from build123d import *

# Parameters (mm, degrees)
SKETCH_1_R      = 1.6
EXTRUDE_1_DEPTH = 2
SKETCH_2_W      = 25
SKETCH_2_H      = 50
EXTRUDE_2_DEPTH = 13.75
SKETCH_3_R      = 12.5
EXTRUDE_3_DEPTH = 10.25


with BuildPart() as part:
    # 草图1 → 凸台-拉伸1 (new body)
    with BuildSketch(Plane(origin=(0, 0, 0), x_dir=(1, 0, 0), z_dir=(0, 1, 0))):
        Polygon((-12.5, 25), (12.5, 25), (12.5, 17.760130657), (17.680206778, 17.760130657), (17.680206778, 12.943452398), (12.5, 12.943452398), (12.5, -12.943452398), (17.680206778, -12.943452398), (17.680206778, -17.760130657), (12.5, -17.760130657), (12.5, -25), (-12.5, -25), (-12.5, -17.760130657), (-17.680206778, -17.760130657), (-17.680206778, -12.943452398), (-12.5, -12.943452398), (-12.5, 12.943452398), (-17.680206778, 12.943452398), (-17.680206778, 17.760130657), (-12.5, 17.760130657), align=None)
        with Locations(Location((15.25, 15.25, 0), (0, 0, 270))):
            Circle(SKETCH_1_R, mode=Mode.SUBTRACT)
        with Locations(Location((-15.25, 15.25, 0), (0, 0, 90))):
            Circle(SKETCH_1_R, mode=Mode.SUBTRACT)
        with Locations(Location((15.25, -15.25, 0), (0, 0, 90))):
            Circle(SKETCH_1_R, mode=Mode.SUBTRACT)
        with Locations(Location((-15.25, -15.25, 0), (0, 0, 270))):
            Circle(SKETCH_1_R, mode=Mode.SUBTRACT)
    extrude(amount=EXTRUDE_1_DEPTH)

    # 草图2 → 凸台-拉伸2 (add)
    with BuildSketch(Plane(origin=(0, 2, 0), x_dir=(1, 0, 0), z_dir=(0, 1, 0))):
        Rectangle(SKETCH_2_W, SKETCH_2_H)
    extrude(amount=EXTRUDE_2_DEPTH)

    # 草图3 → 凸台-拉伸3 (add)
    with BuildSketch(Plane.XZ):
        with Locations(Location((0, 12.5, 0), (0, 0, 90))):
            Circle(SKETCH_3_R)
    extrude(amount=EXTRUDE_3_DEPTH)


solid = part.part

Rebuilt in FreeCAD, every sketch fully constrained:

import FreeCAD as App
import Part
import Sketcher

doc = App.newDocument("Part")
body = doc.addObject("PartDesign::Body", "Body")

sketch1 = body.newObject("Sketcher::SketchObject", "Sketch")
sketch1.AttachmentSupport = (doc.getObject("XZ_Plane"), [""])
sketch1.MapMode = "FlatFace"
sketch1.addGeometry([
    Part.LineSegment(App.Vector(12.5, -25, 0), App.Vector(-12.5, -25, 0)),
    Part.LineSegment(App.Vector(-12.5, -25, 0), App.Vector(-12.5, -17.8, 0)),
    Part.LineSegment(App.Vector(-12.5, -17.8, 0), App.Vector(-17.7, -17.8, 0)),
    Part.LineSegment(App.Vector(-17.7, -17.8, 0), App.Vector(-17.7, -12.9, 0)),
    Part.LineSegment(App.Vector(-17.7, -12.9, 0), App.Vector(-12.5, -12.9, 0)),
    Part.LineSegment(App.Vector(-12.5, -12.9, 0), App.Vector(-12.5, 12.9, 0)),
    Part.LineSegment(App.Vector(-12.5, 12.9, 0), App.Vector(-17.7, 12.9, 0)),
    Part.LineSegment(App.Vector(-17.7, 12.9, 0), App.Vector(-17.7, 17.8, 0)),
    Part.LineSegment(App.Vector(-17.7, 17.8, 0), App.Vector(-12.5, 17.8, 0)),
    Part.LineSegment(App.Vector(-12.5, 17.8, 0), App.Vector(-12.5, 25, 0)),
    Part.LineSegment(App.Vector(-12.5, 25, 0), App.Vector(12.5, 25, 0)),
    Part.LineSegment(App.Vector(12.5, 25, 0), App.Vector(12.5, 17.8, 0)),
    Part.LineSegment(App.Vector(12.5, 17.8, 0), App.Vector(17.7, 17.8, 0)),
    Part.LineSegment(App.Vector(17.7, 17.8, 0), App.Vector(17.7, 12.9, 0)),
    Part.LineSegment(App.Vector(17.7, 12.9, 0), App.Vector(12.5, 12.9, 0)),
    Part.LineSegment(App.Vector(12.5, 12.9, 0), App.Vector(12.5, -12.9, 0)),
    Part.LineSegment(App.Vector(12.5, -12.9, 0), App.Vector(17.7, -12.9, 0)),
    Part.LineSegment(App.Vector(17.7, -12.9, 0), App.Vector(17.7, -17.8, 0)),
    Part.LineSegment(App.Vector(17.7, -17.8, 0), App.Vector(12.5, -17.8, 0)),
    Part.LineSegment(App.Vector(12.5, -17.8, 0), App.Vector(12.5, -25, 0)),
    Part.Circle(App.Vector(15.2, 15.2, 0), App.Vector(0, 0, 1), 1.6),
    Part.Circle(App.Vector(-15.2, 15.2, 0), App.Vector(0, 0, 1), 1.6),
    Part.Circle(App.Vector(15.2, -15.2, 0), App.Vector(0, 0, 1), 1.6),
    Part.Circle(App.Vector(-15.2, -15.2, 0), App.Vector(0, 0, 1), 1.6),
], False)
sketch1.addConstraint([
    Sketcher.Constraint("Coincident", 0, 2, 1, 1),
    Sketcher.Constraint("Coincident", 1, 2, 2, 1),
    Sketcher.Constraint("Coincident", 2, 2, 3, 1),
    Sketcher.Constraint("Coincident", 3, 2, 4, 1),
    Sketcher.Constraint("Coincident", 4, 2, 5, 1),
    Sketcher.Constraint("Coincident", 5, 2, 6, 1),
    Sketcher.Constraint("Coincident", 6, 2, 7, 1),
    Sketcher.Constraint("Coincident", 7, 2, 8, 1),
    Sketcher.Constraint("Coincident", 8, 2, 9, 1),
    Sketcher.Constraint("Coincident", 9, 2, 10, 1),
    Sketcher.Constraint("Coincident", 10, 2, 11, 1),
    Sketcher.Constraint("Coincident", 11, 2, 12, 1),
    Sketcher.Constraint("Coincident", 12, 2, 13, 1),
    Sketcher.Constraint("Coincident", 13, 2, 14, 1),
    Sketcher.Constraint("Coincident", 14, 2, 15, 1),
    Sketcher.Constraint("Coincident", 15, 2, 16, 1),
    Sketcher.Constraint("Coincident", 16, 2, 17, 1),
    Sketcher.Constraint("Coincident", 17, 2, 18, 1),
    Sketcher.Constraint("Coincident", 18, 2, 19, 1),
    Sketcher.Constraint("Coincident", 19, 2, 0, 1),
    Sketcher.Constraint("Horizontal", 0),
    Sketcher.Constraint("Vertical", 1),
    Sketcher.Constraint("Horizontal", 2),
    Sketcher.Constraint("Vertical", 3),
    Sketcher.Constraint("Horizontal", 4),
    Sketcher.Constraint("Vertical", 5),
    Sketcher.Constraint("Horizontal", 6),
    Sketcher.Constraint("Vertical", 7),
    Sketcher.Constraint("Horizontal", 8),
    Sketcher.Constraint("Vertical", 9),
    Sketcher.Constraint("Horizontal", 10),
    Sketcher.Constraint("Vertical", 11),
    Sketcher.Constraint("Horizontal", 12),
    Sketcher.Constraint("Vertical", 13),
    Sketcher.Constraint("Horizontal", 14),
    Sketcher.Constraint("Vertical", 15),
    Sketcher.Constraint("Horizontal", 16),
    Sketcher.Constraint("Vertical", 17),
    Sketcher.Constraint("Horizontal", 18),
    Sketcher.Constraint("Vertical", 19),
    Sketcher.Constraint("Equal", 20, 21),
    Sketcher.Constraint("Equal", 21, 22),
    Sketcher.Constraint("Equal", 22, 23),
    Sketcher.Constraint("Symmetric", 21, 3, 22, 3, -1, 1),
    Sketcher.Constraint("Symmetric", 20, 3, 23, 3, -1, 1),
    Sketcher.Constraint("Symmetric", 0, 2, 10, 2, -1, 1),
    Sketcher.Constraint("Symmetric", 2, 2, 12, 2, -1, 1),
    Sketcher.Constraint("Symmetric", 4, 2, 14, 2, -1, 1),
    Sketcher.Constraint("Symmetric", 6, 2, 16, 2, -1, 1),
    Sketcher.Constraint("Symmetric", 8, 2, 18, 2, -1, 1),
    Sketcher.Constraint("Symmetric", 20, 3, 21, 3, -2),
    Sketcher.Constraint("Symmetric", 8, 2, 11, 2, -2),
    Sketcher.Constraint("Symmetric", 6, 2, 13, 2, -2),
    Sketcher.Constraint("Vertical", 1, 2, 4, 2),
    Sketcher.Constraint("Diameter", 20, 3.2),
    Sketcher.Constraint("DistanceX", 0, 2, 0, 1, 25.0),
    Sketcher.Constraint("DistanceY", 0, 2, -1, 1, 25.0),
    Sketcher.Constraint("DistanceX", 21, 3, 20, 3, 30.5),
    Sketcher.Constraint("DistanceY", 22, 3, 20, 3, 30.5),
    Sketcher.Constraint("DistanceY", 1, 1, 1, 2, 7.239869),
    Sketcher.Constraint("DistanceY", 3, 1, 3, 2, 4.816678),
    Sketcher.Constraint("DistanceX", 2, 2, 2, 1, 5.180207),
])
pad1 = body.newObject("PartDesign::Pad", "Pad")
pad1.Profile = sketch1
pad1.Length = 2
pad1.Reversed = True

sketch2 = body.newObject("Sketcher::SketchObject", "Sketch001")
sketch2.AttachmentSupport = (doc.getObject("XZ_Plane"), [""])
sketch2.MapMode = "FlatFace"
sketch2.AttachmentOffset = App.Placement(App.Vector(0, 0, -2), App.Rotation())
sketch2.addGeometry([
    Part.LineSegment(App.Vector(-12, -25, 0), App.Vector(-12, 25, 0)),
    Part.LineSegment(App.Vector(-12, 25, 0), App.Vector(12, 25, 0)),
    Part.LineSegment(App.Vector(12, 25, 0), App.Vector(12, -25, 0)),
    Part.LineSegment(App.Vector(12, -25, 0), App.Vector(-12, -25, 0)),
], False)
sketch2.addConstraint([
    Sketcher.Constraint("Coincident", 0, 2, 1, 1),
    Sketcher.Constraint("Coincident", 1, 2, 2, 1),
    Sketcher.Constraint("Coincident", 2, 2, 3, 1),
    Sketcher.Constraint("Coincident", 3, 2, 0, 1),
    Sketcher.Constraint("Vertical", 0),
    Sketcher.Constraint("Horizontal", 1),
    Sketcher.Constraint("Vertical", 2),
    Sketcher.Constraint("Horizontal", 3),
    Sketcher.Constraint("Symmetric", 0, 2, 2, 2, -1, 1),
    Sketcher.Constraint("DistanceX", 1, 1, 1, 2, 25.0),
    Sketcher.Constraint("DistanceY", 0, 1, 0, 2, 50.0),
])
pad2 = body.newObject("PartDesign::Pad", "Pad001")
pad2.Profile = sketch2
pad2.Length = 13.75
pad2.Reversed = True

sketch3 = body.newObject("Sketcher::SketchObject", "Sketch002")
sketch3.AttachmentSupport = (doc.getObject("XZ_Plane"), [""])
sketch3.MapMode = "FlatFace"
sketch3.addGeometry(Part.Circle(App.Vector(0, 12, 0), App.Vector(0, 0, 1), 12), False)
sketch3.addConstraint([
    Sketcher.Constraint("PointOnObject", 0, 3, -2),
    Sketcher.Constraint("Diameter", 0, 25.0),
    Sketcher.Constraint("DistanceY", -1, 1, 0, 3, 12.5),
])
pad3 = body.newObject("PartDesign::Pad", "Pad002")
pad3.Profile = sketch3
pad3.Length = 10.25

doc.recompute()
